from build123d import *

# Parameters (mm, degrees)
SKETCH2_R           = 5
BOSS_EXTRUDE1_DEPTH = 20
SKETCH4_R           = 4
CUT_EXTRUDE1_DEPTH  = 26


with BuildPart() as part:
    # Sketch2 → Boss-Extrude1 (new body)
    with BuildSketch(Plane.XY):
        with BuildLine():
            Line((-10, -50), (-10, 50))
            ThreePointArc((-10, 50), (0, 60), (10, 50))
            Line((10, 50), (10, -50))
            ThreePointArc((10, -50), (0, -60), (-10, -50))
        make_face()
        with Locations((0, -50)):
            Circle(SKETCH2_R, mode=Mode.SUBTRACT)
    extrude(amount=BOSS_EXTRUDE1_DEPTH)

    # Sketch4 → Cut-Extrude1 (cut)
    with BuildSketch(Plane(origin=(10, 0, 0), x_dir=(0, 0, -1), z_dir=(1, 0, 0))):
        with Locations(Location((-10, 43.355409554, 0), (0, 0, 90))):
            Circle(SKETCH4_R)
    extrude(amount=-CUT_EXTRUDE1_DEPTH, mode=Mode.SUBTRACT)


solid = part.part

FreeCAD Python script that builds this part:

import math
import FreeCAD as App
import Part
import Sketcher
from FreeCAD import Vector
Q = App.Units.Quantity

doc = App.newDocument("Part")
params = doc.addObject("Spreadsheet::Sheet", "Params")
for row, (alias, value) in enumerate([
    ("sketch1_diameter", "10 mm"),
    ("sketch1_radius", "10 mm"),
    ("sketch1_height", "100 mm"),
    ("pad1_length", "20 mm"),
    ("sketch2_diameter", "8 mm"),
    ("pocket1_length", "26 mm"),
], start=1):
    params.set(f"A{row}", alias)
    params.set(f"B{row}", "=" + value)
    params.setAlias(f"B{row}", alias)

body = doc.addObject("PartDesign::Body", "Body")

# Sketch on XY plane
sketch1 = body.newObject("Sketcher::SketchObject", "Sketch")
sketch1.AttachmentSupport = (doc.getObject("XY_Plane"), [""])
sketch1.MapMode = "FlatFace"
sketch1.addGeometry(Part.LineSegment(Vector(-10, 50, 0), Vector(-10, -50, 0)), False)
sketch1.addGeometry(Part.ArcOfCircle(Part.Circle(Vector(0, -50, 0), Vector(0, 0, 1), 10), math.radians(180), math.radians(360)), False)
sketch1.addGeometry(Part.LineSegment(Vector(10, -50, 0), Vector(10, 50, 0)), False)
sketch1.addGeometry(Part.ArcOfCircle(Part.Circle(Vector(0, 50, 0), Vector(0, 0, 1), 10), math.radians(0), math.radians(180)), False)
sketch1.addGeometry(Part.Circle(Vector(0, -50, 0), Vector(0, 0, 1), 5), False)
sketch1.addConstraint(Sketcher.Constraint("Tangent", 0, 2, 1, 1))
sketch1.addConstraint(Sketcher.Constraint("Tangent", 1, 2, 2, 1))
sketch1.addConstraint(Sketcher.Constraint("Tangent", 2, 2, 3, 1))
sketch1.addConstraint(Sketcher.Constraint("Tangent", 3, 2, 0, 1))
sketch1.addConstraint(Sketcher.Constraint("Vertical", 0))
sketch1.addConstraint(Sketcher.Constraint("Vertical", 2))
sketch1.addConstraint(Sketcher.Constraint("Coincident", 4, 3, 1, 3))
sketch1.addConstraint(Sketcher.Constraint("Symmetric", 1, 3, 3, 3, -1, 1))
sketch1.addConstraint(Sketcher.Constraint("Diameter", 4, Q("10 mm")))
sketch1.addConstraint(Sketcher.Constraint("Radius", 1, Q("10 mm")))
sketch1.addConstraint(Sketcher.Constraint("DistanceY", 0, 2, 0, 1, Q("100 mm")))
sketch1.setExpression("Constraints[8]", "Params.sketch1_diameter")
sketch1.setExpression("Constraints[9]", "Params.sketch1_radius")
sketch1.setExpression("Constraints[10]", "Params.sketch1_height")
pad1 = body.newObject("PartDesign::Pad", "Pad")
pad1.Profile = sketch1
pad1.setExpression("Length", "Params.pad1_length")

# Sketch on YZ plane
sketch2 = body.newObject("Sketcher::SketchObject", "Sketch001")
sketch2.AttachmentSupport = (doc.getObject("YZ_Plane"), [""])
sketch2.MapMode = "FlatFace"
sketch2.AttachmentOffset = App.Placement(Vector(0, 0, 10), App.Rotation())
sketch2.addGeometry(Part.Circle(Vector(43.4, 10, 0), Vector(0, 0, 1), 4), False)
sketch2.addConstraint(Sketcher.Constraint("Diameter", 0, Q("8 mm")))
sketch2.addConstraint(Sketcher.Constraint("DistanceY", -1, 1, 0, 3, Q("10 mm")))
sketch2.addConstraint(Sketcher.Constraint("DistanceX", -1, 1, 0, 3, Q("43.35541 mm")))
sketch2.setExpression("Constraints[0]", "Params.sketch2_diameter")
pocket1 = body.newObject("PartDesign::Pocket", "Pocket")
pocket1.Profile = sketch2
pocket1.setExpression("Length", "Params.pocket1_length")

doc.recompute()
